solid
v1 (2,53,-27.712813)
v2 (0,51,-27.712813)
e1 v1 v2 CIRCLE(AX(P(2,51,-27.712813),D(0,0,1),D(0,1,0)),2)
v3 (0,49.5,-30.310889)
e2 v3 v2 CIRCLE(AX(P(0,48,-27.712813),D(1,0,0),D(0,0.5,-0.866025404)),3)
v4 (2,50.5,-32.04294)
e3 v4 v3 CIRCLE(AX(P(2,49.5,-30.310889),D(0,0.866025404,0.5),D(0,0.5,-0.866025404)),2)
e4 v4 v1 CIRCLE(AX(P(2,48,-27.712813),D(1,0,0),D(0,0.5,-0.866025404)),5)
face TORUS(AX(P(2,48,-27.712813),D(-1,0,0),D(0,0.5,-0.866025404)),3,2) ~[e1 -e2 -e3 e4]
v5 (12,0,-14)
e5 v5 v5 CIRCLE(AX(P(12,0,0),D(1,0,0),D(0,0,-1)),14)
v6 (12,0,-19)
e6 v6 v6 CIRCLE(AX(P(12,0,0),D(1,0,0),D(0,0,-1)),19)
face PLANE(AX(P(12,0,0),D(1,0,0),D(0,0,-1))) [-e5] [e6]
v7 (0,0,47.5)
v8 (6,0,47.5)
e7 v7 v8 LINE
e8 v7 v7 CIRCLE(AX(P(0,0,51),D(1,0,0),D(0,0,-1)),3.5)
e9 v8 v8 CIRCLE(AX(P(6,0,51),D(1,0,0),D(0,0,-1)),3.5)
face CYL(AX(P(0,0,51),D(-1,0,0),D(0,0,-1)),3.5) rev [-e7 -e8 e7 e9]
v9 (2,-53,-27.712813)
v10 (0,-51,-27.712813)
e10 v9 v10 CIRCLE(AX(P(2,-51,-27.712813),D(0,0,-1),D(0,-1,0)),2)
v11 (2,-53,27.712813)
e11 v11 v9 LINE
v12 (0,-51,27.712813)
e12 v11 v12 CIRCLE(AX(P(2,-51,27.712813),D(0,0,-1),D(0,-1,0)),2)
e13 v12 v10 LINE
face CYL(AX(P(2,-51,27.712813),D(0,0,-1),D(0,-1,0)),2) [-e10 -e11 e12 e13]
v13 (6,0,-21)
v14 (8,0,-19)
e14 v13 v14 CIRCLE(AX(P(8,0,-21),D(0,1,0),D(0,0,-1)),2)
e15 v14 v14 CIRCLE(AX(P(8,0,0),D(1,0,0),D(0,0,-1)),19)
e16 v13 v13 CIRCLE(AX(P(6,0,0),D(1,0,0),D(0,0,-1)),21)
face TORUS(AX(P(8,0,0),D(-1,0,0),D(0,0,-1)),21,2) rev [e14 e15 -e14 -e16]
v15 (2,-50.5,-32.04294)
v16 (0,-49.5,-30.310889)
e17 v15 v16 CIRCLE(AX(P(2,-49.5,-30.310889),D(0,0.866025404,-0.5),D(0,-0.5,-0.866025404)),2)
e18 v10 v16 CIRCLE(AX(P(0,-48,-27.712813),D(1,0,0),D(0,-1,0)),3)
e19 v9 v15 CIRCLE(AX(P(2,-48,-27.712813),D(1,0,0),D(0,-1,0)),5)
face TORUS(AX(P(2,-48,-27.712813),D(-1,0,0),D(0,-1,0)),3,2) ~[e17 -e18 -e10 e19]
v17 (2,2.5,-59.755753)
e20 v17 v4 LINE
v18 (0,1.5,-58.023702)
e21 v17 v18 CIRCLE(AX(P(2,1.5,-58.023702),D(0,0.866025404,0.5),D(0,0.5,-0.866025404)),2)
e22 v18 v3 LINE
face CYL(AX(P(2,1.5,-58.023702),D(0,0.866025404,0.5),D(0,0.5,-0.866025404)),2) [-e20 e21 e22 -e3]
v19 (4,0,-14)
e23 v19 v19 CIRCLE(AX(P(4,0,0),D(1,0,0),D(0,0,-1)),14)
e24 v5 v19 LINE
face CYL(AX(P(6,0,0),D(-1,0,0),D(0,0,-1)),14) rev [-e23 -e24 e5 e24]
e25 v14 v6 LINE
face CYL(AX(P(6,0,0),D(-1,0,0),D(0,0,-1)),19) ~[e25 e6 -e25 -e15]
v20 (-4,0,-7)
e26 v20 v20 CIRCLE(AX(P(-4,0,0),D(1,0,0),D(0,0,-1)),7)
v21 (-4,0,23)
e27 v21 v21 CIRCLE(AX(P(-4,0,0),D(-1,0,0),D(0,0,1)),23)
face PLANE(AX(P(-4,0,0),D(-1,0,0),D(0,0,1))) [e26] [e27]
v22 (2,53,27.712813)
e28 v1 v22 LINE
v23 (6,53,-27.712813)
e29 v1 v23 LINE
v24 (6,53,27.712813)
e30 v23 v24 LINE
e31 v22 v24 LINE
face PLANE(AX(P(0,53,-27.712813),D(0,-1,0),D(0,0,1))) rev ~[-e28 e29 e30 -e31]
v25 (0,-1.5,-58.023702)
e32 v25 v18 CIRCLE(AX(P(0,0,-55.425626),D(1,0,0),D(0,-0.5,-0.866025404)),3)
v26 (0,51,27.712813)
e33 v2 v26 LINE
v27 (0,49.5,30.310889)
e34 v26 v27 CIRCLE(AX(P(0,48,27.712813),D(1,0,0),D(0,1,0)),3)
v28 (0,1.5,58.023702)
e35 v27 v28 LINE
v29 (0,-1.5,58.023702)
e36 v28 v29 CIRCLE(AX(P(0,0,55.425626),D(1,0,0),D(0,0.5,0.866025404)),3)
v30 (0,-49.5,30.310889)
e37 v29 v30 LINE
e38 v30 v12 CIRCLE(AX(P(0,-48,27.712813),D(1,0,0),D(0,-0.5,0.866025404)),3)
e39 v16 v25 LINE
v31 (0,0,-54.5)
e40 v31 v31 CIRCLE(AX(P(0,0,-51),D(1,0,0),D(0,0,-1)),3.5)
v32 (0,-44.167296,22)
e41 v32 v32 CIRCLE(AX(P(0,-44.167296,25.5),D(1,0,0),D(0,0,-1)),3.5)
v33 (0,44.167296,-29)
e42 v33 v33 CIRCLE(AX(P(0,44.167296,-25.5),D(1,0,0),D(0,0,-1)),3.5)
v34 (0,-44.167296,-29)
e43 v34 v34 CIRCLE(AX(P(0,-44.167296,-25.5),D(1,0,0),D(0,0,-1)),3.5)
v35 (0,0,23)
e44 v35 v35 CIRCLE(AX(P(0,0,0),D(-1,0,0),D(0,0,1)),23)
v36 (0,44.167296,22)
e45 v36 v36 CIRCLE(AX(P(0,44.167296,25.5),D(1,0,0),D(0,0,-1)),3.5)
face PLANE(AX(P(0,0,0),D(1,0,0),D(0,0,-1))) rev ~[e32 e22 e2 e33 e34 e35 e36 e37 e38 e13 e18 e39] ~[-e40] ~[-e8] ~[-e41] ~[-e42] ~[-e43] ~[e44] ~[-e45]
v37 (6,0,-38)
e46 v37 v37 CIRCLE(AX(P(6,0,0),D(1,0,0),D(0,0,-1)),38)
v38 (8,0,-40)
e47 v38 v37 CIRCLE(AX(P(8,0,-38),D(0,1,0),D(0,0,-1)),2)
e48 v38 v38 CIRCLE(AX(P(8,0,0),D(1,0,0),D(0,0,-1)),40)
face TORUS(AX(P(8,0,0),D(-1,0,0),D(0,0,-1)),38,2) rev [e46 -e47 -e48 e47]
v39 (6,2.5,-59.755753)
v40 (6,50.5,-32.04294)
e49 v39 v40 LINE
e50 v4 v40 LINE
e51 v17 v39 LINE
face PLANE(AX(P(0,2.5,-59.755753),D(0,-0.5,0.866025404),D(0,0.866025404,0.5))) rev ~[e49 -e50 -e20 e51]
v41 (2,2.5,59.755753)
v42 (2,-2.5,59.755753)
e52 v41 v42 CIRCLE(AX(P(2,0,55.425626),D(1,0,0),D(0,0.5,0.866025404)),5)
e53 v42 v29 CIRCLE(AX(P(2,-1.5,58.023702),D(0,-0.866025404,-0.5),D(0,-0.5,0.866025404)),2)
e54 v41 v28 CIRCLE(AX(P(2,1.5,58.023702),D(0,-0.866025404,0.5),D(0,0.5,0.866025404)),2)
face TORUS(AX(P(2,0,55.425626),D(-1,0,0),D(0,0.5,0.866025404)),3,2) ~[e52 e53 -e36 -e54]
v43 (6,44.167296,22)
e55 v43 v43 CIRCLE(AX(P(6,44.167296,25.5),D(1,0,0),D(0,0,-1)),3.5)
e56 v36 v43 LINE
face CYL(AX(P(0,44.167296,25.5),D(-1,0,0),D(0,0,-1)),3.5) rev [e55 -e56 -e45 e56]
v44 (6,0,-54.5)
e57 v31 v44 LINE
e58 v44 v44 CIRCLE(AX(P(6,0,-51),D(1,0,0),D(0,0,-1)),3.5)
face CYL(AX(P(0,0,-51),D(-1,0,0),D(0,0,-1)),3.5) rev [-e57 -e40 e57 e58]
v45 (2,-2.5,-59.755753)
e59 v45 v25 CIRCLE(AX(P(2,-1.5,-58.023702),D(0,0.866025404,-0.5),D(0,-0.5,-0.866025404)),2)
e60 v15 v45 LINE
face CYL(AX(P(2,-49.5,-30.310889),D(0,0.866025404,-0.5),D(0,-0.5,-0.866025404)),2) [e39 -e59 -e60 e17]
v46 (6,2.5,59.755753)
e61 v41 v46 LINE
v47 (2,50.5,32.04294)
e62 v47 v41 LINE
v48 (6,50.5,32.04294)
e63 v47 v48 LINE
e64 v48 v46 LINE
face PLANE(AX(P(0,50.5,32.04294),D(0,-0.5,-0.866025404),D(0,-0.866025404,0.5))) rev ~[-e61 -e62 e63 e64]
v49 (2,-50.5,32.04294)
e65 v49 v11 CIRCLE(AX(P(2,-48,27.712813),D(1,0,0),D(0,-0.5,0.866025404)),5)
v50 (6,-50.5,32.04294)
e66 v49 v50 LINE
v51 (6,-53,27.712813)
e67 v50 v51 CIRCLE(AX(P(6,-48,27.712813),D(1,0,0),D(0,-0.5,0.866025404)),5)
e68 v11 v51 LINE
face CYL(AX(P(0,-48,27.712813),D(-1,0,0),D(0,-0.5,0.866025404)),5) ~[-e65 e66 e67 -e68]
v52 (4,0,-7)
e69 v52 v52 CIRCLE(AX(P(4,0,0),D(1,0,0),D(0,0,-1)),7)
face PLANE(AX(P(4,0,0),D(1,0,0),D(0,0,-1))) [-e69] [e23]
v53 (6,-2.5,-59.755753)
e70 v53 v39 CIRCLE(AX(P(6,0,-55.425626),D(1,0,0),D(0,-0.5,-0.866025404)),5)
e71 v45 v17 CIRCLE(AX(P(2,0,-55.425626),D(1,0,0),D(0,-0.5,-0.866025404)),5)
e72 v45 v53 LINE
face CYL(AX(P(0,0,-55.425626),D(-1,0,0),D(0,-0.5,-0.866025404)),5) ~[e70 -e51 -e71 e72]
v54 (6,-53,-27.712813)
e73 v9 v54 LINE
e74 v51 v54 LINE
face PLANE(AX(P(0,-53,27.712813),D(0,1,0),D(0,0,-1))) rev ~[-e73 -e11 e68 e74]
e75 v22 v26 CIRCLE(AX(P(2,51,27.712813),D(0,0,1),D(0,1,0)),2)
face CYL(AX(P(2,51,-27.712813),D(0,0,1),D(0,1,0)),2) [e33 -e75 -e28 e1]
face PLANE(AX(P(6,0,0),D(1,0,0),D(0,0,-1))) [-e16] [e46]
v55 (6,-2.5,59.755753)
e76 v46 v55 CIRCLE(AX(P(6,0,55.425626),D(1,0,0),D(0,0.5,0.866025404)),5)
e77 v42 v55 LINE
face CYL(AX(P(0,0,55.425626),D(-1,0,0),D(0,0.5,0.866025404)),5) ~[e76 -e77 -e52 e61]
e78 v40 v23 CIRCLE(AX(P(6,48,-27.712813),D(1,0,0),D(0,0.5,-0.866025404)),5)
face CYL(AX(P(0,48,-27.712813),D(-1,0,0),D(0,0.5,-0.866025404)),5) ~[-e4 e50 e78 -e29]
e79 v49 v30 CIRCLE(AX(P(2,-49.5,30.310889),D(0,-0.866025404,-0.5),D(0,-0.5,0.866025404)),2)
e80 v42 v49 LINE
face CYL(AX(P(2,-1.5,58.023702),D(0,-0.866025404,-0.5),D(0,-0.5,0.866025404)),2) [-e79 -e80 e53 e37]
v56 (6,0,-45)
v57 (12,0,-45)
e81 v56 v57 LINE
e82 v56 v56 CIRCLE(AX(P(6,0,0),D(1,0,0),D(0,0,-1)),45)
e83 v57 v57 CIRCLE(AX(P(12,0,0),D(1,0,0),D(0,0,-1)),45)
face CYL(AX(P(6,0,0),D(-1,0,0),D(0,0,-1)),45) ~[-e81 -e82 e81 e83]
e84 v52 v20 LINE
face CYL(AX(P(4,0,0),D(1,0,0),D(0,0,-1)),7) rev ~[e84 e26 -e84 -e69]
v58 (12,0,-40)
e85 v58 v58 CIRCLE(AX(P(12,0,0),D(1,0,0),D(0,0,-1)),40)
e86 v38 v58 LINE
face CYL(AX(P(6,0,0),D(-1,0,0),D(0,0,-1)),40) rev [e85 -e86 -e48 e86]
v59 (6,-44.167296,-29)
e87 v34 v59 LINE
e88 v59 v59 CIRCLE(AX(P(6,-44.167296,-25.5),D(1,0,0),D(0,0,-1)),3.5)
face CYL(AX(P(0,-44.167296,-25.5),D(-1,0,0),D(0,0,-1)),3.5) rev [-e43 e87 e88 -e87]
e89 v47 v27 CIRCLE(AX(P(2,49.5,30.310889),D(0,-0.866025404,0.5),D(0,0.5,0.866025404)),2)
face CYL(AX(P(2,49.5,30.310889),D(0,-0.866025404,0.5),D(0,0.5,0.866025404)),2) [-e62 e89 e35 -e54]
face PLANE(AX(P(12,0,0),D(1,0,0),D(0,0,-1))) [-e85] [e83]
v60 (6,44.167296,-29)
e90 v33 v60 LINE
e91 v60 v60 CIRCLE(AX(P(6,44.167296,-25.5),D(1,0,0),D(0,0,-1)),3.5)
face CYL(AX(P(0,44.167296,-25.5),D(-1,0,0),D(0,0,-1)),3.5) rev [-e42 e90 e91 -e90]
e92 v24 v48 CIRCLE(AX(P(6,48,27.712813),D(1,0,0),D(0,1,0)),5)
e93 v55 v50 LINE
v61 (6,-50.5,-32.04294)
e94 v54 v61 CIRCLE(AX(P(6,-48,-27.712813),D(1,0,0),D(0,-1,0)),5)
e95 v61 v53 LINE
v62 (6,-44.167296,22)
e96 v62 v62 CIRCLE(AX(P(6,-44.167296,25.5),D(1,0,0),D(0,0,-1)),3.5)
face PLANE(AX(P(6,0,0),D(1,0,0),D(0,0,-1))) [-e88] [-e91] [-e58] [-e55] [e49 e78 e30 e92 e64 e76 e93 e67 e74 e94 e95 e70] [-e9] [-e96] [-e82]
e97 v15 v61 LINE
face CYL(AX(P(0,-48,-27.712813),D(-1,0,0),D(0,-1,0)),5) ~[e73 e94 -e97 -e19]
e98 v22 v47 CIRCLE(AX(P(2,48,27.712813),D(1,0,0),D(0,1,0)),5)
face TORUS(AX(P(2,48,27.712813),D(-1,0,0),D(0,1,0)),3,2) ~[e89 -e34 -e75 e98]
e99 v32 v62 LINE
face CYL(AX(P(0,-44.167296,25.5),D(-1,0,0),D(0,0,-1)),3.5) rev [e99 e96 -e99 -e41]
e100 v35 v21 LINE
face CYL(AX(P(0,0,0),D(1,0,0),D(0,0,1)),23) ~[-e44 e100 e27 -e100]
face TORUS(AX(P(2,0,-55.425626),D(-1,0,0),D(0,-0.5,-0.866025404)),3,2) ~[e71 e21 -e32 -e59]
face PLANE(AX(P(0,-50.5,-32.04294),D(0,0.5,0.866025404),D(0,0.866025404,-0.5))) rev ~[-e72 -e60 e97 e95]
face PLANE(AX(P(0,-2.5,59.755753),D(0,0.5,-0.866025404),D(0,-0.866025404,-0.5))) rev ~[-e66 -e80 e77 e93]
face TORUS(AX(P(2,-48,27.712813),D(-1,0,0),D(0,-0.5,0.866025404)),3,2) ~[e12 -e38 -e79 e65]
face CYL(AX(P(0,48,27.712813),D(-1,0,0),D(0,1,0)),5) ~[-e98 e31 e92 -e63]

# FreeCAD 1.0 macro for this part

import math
import FreeCAD as App
import Part
import Sketcher
Q = App.Units.Quantity


def edges_at(feature, points):
    """Names of the edges that pass closest to the given points."""
    edges = feature.Shape.Edges
    near = lambda p: min(range(len(edges)), key=lambda i: edges[i].distToShape(Part.Vertex(*p))[0])
    return sorted({f"Edge{near(p) + 1}" for p in points})

doc = App.newDocument("Part")
body = doc.addObject("PartDesign::Body", "Body")

# Sketch on YZ plane
sketch1 = body.newObject("Sketcher::SketchObject", "Sketch")
sketch1.AttachmentSupport = (doc.getObject("YZ_Plane"), [""])
sketch1.MapMode = "FlatFace"
sketch1.addGeometry(Part.LineSegment(App.Vector(2.5, -59.755753, 0), App.Vector(50.5, -32.04294, 0)), False)
sketch1.addGeometry(Part.ArcOfCircle(Part.Circle(App.Vector(48, -27.712813, 0), App.Vector(0, 0, 1), 5), math.radians(-60), math.radians(0)), False)
sketch1.addGeometry(Part.LineSegment(App.Vector(53, -27.712813, 0), App.Vector(53, 27.712813, 0)), False)
sketch1.addGeometry(Part.ArcOfCircle(Part.Circle(App.Vector(48, 27.712813, 0), App.Vector(0, 0, 1), 5), math.radians(0), math.radians(60)), False)
sketch1.addGeometry(Part.LineSegment(App.Vector(50.5, 32.04294, 0), App.Vector(2.5, 59.755753, 0)), False)
sketch1.addGeometry(Part.ArcOfCircle(Part.Circle(App.Vector(0, 55.425626, 0), App.Vector(0, 0, 1), 5), math.radians(60), math.radians(120)), False)
sketch1.addGeometry(Part.LineSegment(App.Vector(-2.5, 59.755753, 0), App.Vector(-50.5, 32.04294, 0)), False)
sketch1.addGeometry(Part.ArcOfCircle(Part.Circle(App.Vector(-48, 27.712813, 0), App.Vector(0, 0, 1), 5), math.radians(120), math.radians(180)), False)
sketch1.addGeometry(Part.LineSegment(App.Vector(-53, 27.712813, 0), App.Vector(-53, -27.712813, 0)), False)
sketch1.addGeometry(Part.ArcOfCircle(Part.Circle(App.Vector(-48, -27.712813, 0), App.Vector(0, 0, 1), 5), math.radians(180), math.radians(240)), False)
sketch1.addGeometry(Part.LineSegment(App.Vector(-50.5, -32.04294, 0), App.Vector(-2.5, -59.755753, 0)), False)
sketch1.addGeometry(Part.ArcOfCircle(Part.Circle(App.Vector(0, -55.425626, 0), App.Vector(0, 0, 1), 5), math.radians(-120), math.radians(-60)), False)
sketch1.addGeometry(Part.Circle(App.Vector(-44.167296, 25.5, 0), App.Vector(0, 0, 1), 3.5), False)
sketch1.addGeometry(Part.Circle(App.Vector(-44.167296, -25.5, 0), App.Vector(0, 0, 1), 3.5), False)
sketch1.addGeometry(Part.Circle(App.Vector(0, 51, 0), App.Vector(0, 0, 1), 3.5), False)
sketch1.addGeometry(Part.Circle(App.Vector(44.167296, 25.5, 0), App.Vector(0, 0, 1), 3.5), False)
sketch1.addGeometry(Part.Circle(App.Vector(0, -51, 0), App.Vector(0, 0, 1), 3.5), False)
sketch1.addGeometry(Part.Circle(App.Vector(44.167296, -25.5, 0), App.Vector(0, 0, 1), 3.5), False)
sketch1.addConstraint(Sketcher.Constraint("Tangent", 0, 2, 1, 1))
sketch1.addConstraint(Sketcher.Constraint("Tangent", 1, 2, 2, 1))
sketch1.addConstraint(Sketcher.Constraint("Tangent", 2, 2, 3, 1))
sketch1.addConstraint(Sketcher.Constraint("Tangent", 3, 2, 4, 1))
sketch1.addConstraint(Sketcher.Constraint("Tangent", 4, 2, 5, 1))
sketch1.addConstraint(Sketcher.Constraint("Tangent", 5, 2, 6, 1))
sketch1.addConstraint(Sketcher.Constraint("Tangent", 6, 2, 7, 1))
sketch1.addConstraint(Sketcher.Constraint("Tangent", 7, 2, 8, 1))
sketch1.addConstraint(Sketcher.Constraint("Tangent", 8, 2, 9, 1))
sketch1.addConstraint(Sketcher.Constraint("Tangent", 9, 2, 10, 1))
sketch1.addConstraint(Sketcher.Constraint("Tangent", 10, 2, 11, 1))
sketch1.addConstraint(Sketcher.Constraint("Tangent", 11, 2, 0, 1))
sketch1.addConstraint(Sketcher.Constraint("Vertical", 2))
sketch1.addConstraint(Sketcher.Constraint("Vertical", 8))
sketch1.addConstraint(Sketcher.Constraint("Equal", 1, 3))
sketch1.addConstraint(Sketcher.Constraint("Equal", 3, 5))
sketch1.addConstraint(Sketcher.Constraint("Equal", 5, 7))
sketch1.addConstraint(Sketcher.Constraint("Equal", 7, 9))
sketch1.addConstraint(Sketcher.Constraint("Equal", 9, 11))
sketch1.addConstraint(Sketcher.Constraint("Equal", 12, 13))
sketch1.addConstraint(Sketcher.Constraint("Equal", 13, 14))
sketch1.addConstraint(Sketcher.Constraint("Equal", 14, 15))
sketch1.addConstraint(Sketcher.Constraint("Equal", 15, 16))
sketch1.addConstraint(Sketcher.Constraint("Equal", 16, 17))
sketch1.addConstraint(Sketcher.Constraint("Symmetric", 1, 3, 7, 3, -1, 1))
sketch1.addConstraint(Sketcher.Constraint("Symmetric", 5, 3, 11, 3, -1, 1))
sketch1.addConstraint(Sketcher.Constraint("Symmetric", 13, 3, 15, 3, -1, 1))
sketch1.addConstraint(Sketcher.Constraint("Symmetric", 14, 3, 16, 3, -1, 1))
sketch1.addConstraint(Sketcher.Constraint("Symmetric", 12, 3, 17, 3, -1, 1))
sketch1.addConstraint(Sketcher.Constraint("Symmetric", 12, 3, 15, 3, -2))
sketch1.addConstraint(Sketcher.Constraint("Symmetric", 4, 2, 5, 2, -2))
sketch1.addConstraint(Sketcher.Constraint("PointOnObject", 14, 3, -2))
sketch1.addConstraint(Sketcher.Constraint("Parallel", 4, 10))
sketch1.addConstraint(Sketcher.Constraint("Diameter", 12, 7.0))
sketch1.addConstraint(Sketcher.Constraint("Radius", 1, 5.0))
sketch1.addConstraint(Sketcher.Constraint("Angle", 0, Q("30 deg")))
sketch1.addConstraint(Sketcher.Constraint("DistanceX", -1, 1, 1, 3, 48.0))
sketch1.addConstraint(Sketcher.Constraint("DistanceY", -1, 1, 14, 3, 51.0))
sketch1.addConstraint(Sketcher.Constraint("DistanceY", 13, 3, 12, 3, 51.0))
sketch1.addConstraint(Sketcher.Constraint("DistanceY", 2, 1, 2, 2, 55.425626))
sketch1.addConstraint(Sketcher.Constraint("DistanceX", 12, 3, 15, 3, 88.334591))
pad1 = body.newObject("PartDesign::Pad", "Pad")
pad1.Profile = sketch1
pad1.Length = 6
doc.recompute()

fillet = body.newObject("PartDesign::Fillet", "Fillet")
fillet.Base = (pad1, edges_at(pad1, [
    (0, 26.5, -45.899),
    (0, 0, -60.426),
    (0, -26.5, -45.899),
    (0, -52.33, -30.213),
    (0, -53, 0),
    (0, -52.33, 30.213),
    (0, -26.5, 45.899),
    (0, 0, 60.426),
    (0, 26.5, 45.899),
    (0, 52.33, 30.213),
    (0, 53, 0),
    (0, 52.33, -30.213),
]))
fillet.Radius = 2

# Sketch on YZ plane
sketch2 = body.newObject("Sketcher::SketchObject", "Sketch001")
sketch2.AttachmentSupport = (doc.getObject("YZ_Plane"), [""])
sketch2.MapMode = "FlatFace"
sketch2.AttachmentOffset = App.Placement(App.Vector(0, 0, 6), App.Rotation())
sketch2.addGeometry(Part.Circle(App.Vector(0, 0, 0), App.Vector(0, 0, 1), 45), False)
sketch2.addGeometry(Part.Circle(App.Vector(0, 0, 0), App.Vector(0, 0, 1), 40), False)
sketch2.addConstraint(Sketcher.Constraint("Coincident", 0, 3, -1, 1))
sketch2.addConstraint(Sketcher.Constraint("Coincident", 1, 3, -1, 1))
sketch2.addConstraint(Sketcher.Constraint("Diameter", 0, 90.0))
sketch2.addConstraint(Sketcher.Constraint("Diameter", 1, 80.0))
pad2 = body.newObject("PartDesign::Pad", "Pad001")
pad2.Profile = sketch2
pad2.Length = 6
doc.recompute()

fillet2 = body.newObject("PartDesign::Fillet", "Fillet001")
fillet2.Base = (pad2, edges_at(pad2, [(6, 0, 40)]))
fillet2.Radius = 2

# Sketch on YZ plane
sketch3 = body.newObject("Sketcher::SketchObject", "Sketch002")
sketch3.AttachmentSupport = (doc.getObject("YZ_Plane"), [""])
sketch3.MapMode = "FlatFace"
sketch3.AttachmentOffset = App.Placement(App.Vector(0, 0, 6), App.Rotation())
sketch3.addGeometry(Part.Circle(App.Vector(0, 0, 0), App.Vector(0, 0, 1), 19), False)
sketch3.addGeometry(Part.Circle(App.Vector(0, 0, 0), App.Vector(0, 0, 1), 14), False)
sketch3.addConstraint(Sketcher.Constraint("Coincident", 0, 3, -1, 1))
sketch3.addConstraint(Sketcher.Constraint("Coincident", 1, 3, -1, 1))
sketch3.addConstraint(Sketcher.Constraint("Diameter", 0, 38.0))
sketch3.addConstraint(Sketcher.Constraint("Diameter", 1, 28.0))
pad3 = body.newObject("PartDesign::Pad", "Pad002")
pad3.Profile = sketch3
pad3.Length = 6
doc.recompute()

fillet3 = body.newObject("PartDesign::Fillet", "Fillet002")
fillet3.Base = (pad3, edges_at(pad3, [(6, 0, 19)]))
fillet3.Radius = 2

# Sketch on YZ plane
sketch4 = body.newObject("Sketcher::SketchObject", "Sketch003")
sketch4.AttachmentSupport = (doc.getObject("YZ_Plane"), [""])
sketch4.MapMode = "FlatFace"
sketch4.AttachmentOffset = App.Placement(App.Vector(0, 0, 6), App.Rotation())
sketch4.addGeometry(Part.Circle(App.Vector(0, 0, 0), App.Vector(0, 0, 1), 14), False)
sketch4.addConstraint(Sketcher.Constraint("Coincident", 0, 3, -1, 1))
sketch4.addConstraint(Sketcher.Constraint("Diameter", 0, 28.0))
pocket1 = body.newObject("PartDesign::Pocket", "Pocket")
pocket1.Profile = sketch4
pocket1.Length = 2

# Sketch on YZ plane
sketch5 = body.newObject("Sketcher::SketchObject", "Sketch004")
sketch5.AttachmentSupport = (doc.getObject("YZ_Plane"), [""])
sketch5.MapMode = "FlatFace"
sketch5.addGeometry(Part.Circle(App.Vector(0, 0, 0), App.Vector(0, 0, 1), 23), False)
sketch5.addConstraint(Sketcher.Constraint("Coincident", 0, 3, -1, 1))
sketch5.addConstraint(Sketcher.Constraint("Diameter", 0, 46.0))
pad4 = body.newObject("PartDesign::Pad", "Pad003")
pad4.Profile = sketch5
pad4.Length = 4
pad4.Reversed = True

# Sketch on YZ plane
sketch6 = body.newObject("Sketcher::SketchObject", "Sketch005")
sketch6.AttachmentSupport = (doc.getObject("YZ_Plane"), [""])
sketch6.MapMode = "FlatFace"
sketch6.AttachmentOffset = App.Placement(App.Vector(0, 0, 4), App.Rotation())
sketch6.addGeometry(Part.Circle(App.Vector(0, 0, 0), App.Vector(0, 0, 1), 7), False)
sketch6.addConstraint(Sketcher.Constraint("Coincident", 0, 3, -1, 1))
sketch6.addConstraint(Sketcher.Constraint("Diameter", 0, 14.0))
pocket2 = body.newObject("PartDesign::Pocket", "Pocket001")
pocket2.Profile = sketch6
pocket2.Type = "ThroughAll"
pocket2.Midplane = True

doc.recompute()
